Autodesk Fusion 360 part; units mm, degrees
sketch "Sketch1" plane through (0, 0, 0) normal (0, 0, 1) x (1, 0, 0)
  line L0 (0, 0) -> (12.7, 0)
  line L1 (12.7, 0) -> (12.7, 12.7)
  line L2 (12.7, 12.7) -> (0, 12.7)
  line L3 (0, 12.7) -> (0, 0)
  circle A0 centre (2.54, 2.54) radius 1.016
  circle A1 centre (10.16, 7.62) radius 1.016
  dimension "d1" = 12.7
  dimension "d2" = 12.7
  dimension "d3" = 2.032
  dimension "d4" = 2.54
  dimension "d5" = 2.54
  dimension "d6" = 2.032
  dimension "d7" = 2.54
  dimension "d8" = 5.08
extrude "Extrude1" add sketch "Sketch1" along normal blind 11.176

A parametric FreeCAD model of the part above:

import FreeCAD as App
import Part
import Sketcher

V = App.Vector
Q = App.Units.Quantity


def add_polygon(sketch, points):
    """Adds a closed chain of lines whose ends are joined by coincident constraints."""
    first, n = sketch.GeometryCount, len(points)
    for a, b in zip(points, points[1:] + points[:1]):
        sketch.addGeometry(Part.LineSegment(App.Vector(*a, 0), App.Vector(*b, 0)), False)
    for i in range(n):
        sketch.addConstraint(Sketcher.Constraint("Coincident", first + i, 2, first + (i + 1) % n, 1))

doc = App.newDocument("Part")
body = doc.addObject("PartDesign::Body", "Body")

# Sketch on XY plane
sketch1 = body.newObject("Sketcher::SketchObject", "Sketch")
sketch1.AttachmentSupport = (doc.getObject("XY_Plane"), [""])
sketch1.MapMode = "FlatFace"
add_polygon(sketch1, [(0, 12.7), (0, 0), (12.7, 0), (12.7, 12.7)])  # lines 0-3
sketch1.addGeometry(Part.Circle(V(2.54, 2.54, 0), V(0, 0, 1), 1.016), False)  # 4
sketch1.addGeometry(Part.Circle(V(10.16, 7.62, 0), V(0, 0, 1), 1.016), False)  # 5
sketch1.addConstraint([
    Sketcher.Constraint("Vertical", 0),
    Sketcher.Constraint("Horizontal", 1),
    Sketcher.Constraint("Vertical", 2),
    Sketcher.Constraint("Horizontal", 3),
    Sketcher.Constraint("Coincident", 0, 2, -1, 1),
    Sketcher.Constraint("Equal", 4, 5),
    Sketcher.Constraint("Equal", 3, 0),
    Sketcher.Constraint("Diameter", 4, Q("0.08 in")),
    Sketcher.Constraint("DistanceX", 1, 1, 1, 2, Q("0.5 in")),
    Sketcher.Constraint("DistanceX", -1, 1, 4, 3, Q("0.1 in")),
    Sketcher.Constraint("DistanceY", -1, 1, 4, 3, Q("0.1 in")),
    Sketcher.Constraint("DistanceY", 4, 3, 5, 3, Q("0.2 in")),
    Sketcher.Constraint("DistanceX", 5, 3, 1, 2, Q("0.1 in")),
])
pad1 = body.newObject("PartDesign::Pad", "Pad")
pad1.Profile = sketch1
pad1.Length = Q("0.44 in")

doc.recompute()
